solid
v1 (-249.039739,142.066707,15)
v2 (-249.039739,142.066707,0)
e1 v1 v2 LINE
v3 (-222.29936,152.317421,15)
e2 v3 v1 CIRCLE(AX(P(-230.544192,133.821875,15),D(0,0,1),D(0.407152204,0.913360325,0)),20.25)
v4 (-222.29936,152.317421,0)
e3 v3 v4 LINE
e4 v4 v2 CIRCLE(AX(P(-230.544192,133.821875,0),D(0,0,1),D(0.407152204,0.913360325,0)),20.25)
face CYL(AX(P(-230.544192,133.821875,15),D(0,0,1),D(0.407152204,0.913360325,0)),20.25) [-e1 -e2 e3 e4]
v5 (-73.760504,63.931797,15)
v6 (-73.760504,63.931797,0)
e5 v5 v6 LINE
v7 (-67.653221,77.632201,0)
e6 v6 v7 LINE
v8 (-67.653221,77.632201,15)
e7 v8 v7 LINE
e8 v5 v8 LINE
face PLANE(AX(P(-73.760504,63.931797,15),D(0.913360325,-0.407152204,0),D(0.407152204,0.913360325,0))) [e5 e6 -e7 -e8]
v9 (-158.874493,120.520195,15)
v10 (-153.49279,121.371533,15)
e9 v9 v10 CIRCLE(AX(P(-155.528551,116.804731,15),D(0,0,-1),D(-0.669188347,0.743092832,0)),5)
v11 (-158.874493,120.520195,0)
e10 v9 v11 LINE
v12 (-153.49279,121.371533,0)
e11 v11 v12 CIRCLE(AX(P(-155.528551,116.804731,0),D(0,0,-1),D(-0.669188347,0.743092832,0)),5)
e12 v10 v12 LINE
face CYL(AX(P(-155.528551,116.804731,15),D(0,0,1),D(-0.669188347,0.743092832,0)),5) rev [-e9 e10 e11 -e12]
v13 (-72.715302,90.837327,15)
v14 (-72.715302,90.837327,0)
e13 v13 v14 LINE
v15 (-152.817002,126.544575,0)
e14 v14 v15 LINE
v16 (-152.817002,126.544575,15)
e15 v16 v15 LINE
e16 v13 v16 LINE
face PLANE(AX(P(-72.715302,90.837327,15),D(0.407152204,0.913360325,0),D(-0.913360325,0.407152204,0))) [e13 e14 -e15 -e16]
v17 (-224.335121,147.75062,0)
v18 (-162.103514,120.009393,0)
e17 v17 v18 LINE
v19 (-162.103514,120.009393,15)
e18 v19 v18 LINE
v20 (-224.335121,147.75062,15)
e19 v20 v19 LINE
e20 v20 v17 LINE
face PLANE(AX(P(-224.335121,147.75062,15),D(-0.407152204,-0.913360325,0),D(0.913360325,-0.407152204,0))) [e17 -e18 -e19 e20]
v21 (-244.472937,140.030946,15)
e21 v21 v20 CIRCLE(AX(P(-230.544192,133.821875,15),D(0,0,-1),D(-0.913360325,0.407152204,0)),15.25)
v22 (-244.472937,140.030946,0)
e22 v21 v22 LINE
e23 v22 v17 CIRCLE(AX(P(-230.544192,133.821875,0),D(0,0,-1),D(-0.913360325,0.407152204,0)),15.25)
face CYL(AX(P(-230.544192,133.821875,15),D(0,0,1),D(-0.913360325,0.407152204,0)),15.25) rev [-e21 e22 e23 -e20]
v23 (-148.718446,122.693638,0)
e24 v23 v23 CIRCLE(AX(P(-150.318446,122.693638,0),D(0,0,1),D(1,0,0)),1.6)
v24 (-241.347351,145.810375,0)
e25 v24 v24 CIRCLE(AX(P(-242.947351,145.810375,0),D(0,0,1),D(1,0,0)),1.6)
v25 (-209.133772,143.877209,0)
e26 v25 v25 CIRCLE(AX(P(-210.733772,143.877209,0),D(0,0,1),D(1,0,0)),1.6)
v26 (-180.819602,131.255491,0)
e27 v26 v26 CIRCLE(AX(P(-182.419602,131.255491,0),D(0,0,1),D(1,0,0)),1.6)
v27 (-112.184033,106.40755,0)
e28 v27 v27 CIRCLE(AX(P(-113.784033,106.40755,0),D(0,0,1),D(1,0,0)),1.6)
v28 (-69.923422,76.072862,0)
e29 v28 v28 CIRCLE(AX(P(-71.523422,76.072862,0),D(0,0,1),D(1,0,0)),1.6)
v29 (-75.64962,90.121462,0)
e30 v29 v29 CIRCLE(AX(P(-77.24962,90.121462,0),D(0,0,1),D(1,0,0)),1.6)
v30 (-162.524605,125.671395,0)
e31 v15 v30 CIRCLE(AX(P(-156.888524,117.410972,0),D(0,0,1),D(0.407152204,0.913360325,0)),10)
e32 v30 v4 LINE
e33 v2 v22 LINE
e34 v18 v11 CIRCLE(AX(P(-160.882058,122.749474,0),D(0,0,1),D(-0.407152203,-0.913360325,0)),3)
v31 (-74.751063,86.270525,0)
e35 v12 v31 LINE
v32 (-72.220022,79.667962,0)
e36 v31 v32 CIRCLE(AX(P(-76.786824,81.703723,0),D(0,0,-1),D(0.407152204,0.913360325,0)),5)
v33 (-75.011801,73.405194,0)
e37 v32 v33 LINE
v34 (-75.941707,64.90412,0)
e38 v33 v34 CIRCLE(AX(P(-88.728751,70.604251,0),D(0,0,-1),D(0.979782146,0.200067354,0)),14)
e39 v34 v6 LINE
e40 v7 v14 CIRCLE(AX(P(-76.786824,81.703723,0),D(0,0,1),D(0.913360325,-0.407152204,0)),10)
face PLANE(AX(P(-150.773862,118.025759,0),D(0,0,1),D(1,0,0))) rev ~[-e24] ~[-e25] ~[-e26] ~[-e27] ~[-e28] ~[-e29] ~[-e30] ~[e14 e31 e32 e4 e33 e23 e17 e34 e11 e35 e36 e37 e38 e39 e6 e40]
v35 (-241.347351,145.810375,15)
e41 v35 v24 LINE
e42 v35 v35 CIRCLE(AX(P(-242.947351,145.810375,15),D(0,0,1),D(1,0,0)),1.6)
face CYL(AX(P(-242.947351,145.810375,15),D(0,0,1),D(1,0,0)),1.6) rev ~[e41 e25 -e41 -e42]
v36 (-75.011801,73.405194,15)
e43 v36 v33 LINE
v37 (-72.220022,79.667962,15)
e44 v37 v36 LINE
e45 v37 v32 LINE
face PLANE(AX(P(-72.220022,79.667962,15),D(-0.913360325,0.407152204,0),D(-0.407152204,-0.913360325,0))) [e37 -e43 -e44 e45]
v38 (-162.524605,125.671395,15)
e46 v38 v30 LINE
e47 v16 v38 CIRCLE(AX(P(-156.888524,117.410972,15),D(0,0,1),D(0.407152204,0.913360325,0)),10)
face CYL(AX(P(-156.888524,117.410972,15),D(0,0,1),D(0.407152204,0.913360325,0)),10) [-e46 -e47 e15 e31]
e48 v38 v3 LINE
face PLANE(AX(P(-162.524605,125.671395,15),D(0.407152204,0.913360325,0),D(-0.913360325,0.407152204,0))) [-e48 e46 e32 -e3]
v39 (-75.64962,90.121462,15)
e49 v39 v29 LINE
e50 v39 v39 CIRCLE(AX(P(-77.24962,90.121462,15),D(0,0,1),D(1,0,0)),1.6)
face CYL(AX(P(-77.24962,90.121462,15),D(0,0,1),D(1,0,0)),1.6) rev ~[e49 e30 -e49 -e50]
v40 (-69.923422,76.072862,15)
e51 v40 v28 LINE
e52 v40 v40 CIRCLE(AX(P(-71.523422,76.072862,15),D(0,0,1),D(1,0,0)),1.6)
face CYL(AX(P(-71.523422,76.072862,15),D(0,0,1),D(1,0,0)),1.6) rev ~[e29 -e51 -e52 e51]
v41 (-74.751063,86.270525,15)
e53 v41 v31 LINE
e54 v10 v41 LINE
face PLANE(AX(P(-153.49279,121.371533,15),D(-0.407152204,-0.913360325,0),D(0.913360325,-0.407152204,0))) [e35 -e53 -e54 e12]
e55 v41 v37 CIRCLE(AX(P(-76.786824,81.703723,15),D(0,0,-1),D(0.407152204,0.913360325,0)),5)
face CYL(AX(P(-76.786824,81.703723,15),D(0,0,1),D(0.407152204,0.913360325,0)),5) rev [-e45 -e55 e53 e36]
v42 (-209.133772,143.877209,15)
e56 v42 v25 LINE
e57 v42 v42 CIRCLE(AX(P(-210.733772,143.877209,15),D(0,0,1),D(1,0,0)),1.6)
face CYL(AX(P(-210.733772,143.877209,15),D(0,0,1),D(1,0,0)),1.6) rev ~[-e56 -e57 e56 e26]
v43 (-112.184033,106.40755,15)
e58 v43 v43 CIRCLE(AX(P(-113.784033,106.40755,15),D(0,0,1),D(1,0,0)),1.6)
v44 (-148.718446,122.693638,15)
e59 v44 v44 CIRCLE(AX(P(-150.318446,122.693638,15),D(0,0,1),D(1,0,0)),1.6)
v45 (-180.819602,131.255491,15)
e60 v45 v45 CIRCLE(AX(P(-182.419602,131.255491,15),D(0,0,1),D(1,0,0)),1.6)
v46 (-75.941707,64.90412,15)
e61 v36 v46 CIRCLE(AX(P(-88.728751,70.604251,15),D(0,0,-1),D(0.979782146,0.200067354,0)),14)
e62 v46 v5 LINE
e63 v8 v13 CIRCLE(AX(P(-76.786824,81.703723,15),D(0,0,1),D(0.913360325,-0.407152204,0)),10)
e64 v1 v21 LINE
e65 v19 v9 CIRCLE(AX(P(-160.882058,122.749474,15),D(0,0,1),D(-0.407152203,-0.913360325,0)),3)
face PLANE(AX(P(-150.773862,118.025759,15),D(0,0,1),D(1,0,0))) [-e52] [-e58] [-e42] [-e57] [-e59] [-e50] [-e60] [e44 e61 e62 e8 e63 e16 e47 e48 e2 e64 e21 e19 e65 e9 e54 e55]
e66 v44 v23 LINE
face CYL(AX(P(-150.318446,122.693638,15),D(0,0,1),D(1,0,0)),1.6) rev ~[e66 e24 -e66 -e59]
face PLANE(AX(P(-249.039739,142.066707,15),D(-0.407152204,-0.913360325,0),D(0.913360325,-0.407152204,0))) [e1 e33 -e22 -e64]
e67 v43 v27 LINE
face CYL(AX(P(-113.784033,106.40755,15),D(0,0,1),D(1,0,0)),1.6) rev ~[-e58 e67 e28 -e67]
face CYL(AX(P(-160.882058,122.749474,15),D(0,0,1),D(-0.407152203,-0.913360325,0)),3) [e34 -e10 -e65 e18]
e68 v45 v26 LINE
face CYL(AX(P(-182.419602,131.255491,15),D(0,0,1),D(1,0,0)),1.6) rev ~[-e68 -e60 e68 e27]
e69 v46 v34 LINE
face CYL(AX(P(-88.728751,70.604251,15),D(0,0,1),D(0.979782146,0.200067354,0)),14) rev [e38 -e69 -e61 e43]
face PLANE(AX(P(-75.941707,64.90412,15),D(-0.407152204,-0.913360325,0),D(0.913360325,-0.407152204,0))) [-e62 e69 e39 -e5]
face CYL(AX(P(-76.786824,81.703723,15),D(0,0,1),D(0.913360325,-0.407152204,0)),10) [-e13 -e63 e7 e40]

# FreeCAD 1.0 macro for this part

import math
import FreeCAD as App
import Part
import Sketcher

doc = App.newDocument("Part")
params = doc.addObject("Spreadsheet::Sheet", "Params")
for row, (alias, value) in enumerate([
    ("sketch1_radius", "14 mm"),
    ("sketch1_radius2", "10 mm"),
    ("sketch1_radius3", "3 mm"),
    ("sketch1_radius4", "5 mm"),
    ("sketch1_diameter", "3.2 mm"),
    ("pad1_length", "15 mm"),
], start=1):
    params.set(f"A{row}", alias)
    params.set(f"B{row}", "=" + value)
    params.setAlias(f"B{row}", alias)

body = doc.addObject("PartDesign::Body", "Body")

sketch1 = body.newObject("Sketcher::SketchObject", "Sketch")
sketch1.AttachmentSupport = (doc.getObject("XY_Plane"), [""])
sketch1.MapMode = "FlatFace"
sketch1.AttachmentOffset = App.Placement(App.Vector(0, 0, 15), App.Rotation())
sketch1.addGeometry([
    Part.LineSegment(App.Vector(-72.2, 79.7, 0), App.Vector(-75, 73.4, 0)),
    Part.ArcOfCircle(Part.Circle(App.Vector(-88.7, 70.6, 0), App.Vector(0, 0, 1), 14), math.radians(-24), math.radians(12)),
    Part.LineSegment(App.Vector(-75.9, 64.9, 0), App.Vector(-73.8, 63.9, 0)),
    Part.LineSegment(App.Vector(-73.8, 63.9, 0), App.Vector(-67.7, 77.6, 0)),
    Part.ArcOfCircle(Part.Circle(App.Vector(-76.8, 81.7, 0), App.Vector(0, 0, 1), 10), math.radians(-24), math.radians(66)),
    Part.LineSegment(App.Vector(-72.7, 90.8, 0), App.Vector(-152.8, 126.5, 0)),
    Part.ArcOfCircle(Part.Circle(App.Vector(-156.9, 117.4, 0), App.Vector(0, 0, 1), 10), math.radians(66), math.radians(124)),
    Part.LineSegment(App.Vector(-162.5, 125.7, 0), App.Vector(-222.3, 152.3, 0)),
    Part.ArcOfCircle(Part.Circle(App.Vector(-230.5, 133.8, 0), App.Vector(0, 0, 1), 20.2), math.radians(66), math.radians(156)),
    Part.LineSegment(App.Vector(-249, 142.1, 0), App.Vector(-244.5, 140, 0)),
    Part.ArcOfCircle(Part.Circle(App.Vector(-230.5, 133.8, 0), App.Vector(0, 0, 1), 15.3), math.radians(66), math.radians(156)),
    Part.LineSegment(App.Vector(-224.3, 147.8, 0), App.Vector(-162.1, 120, 0)),
    Part.ArcOfCircle(Part.Circle(App.Vector(-160.9, 122.7, 0), App.Vector(0, 0, 1), 3), math.radians(-114), math.radians(-48)),
    Part.ArcOfCircle(Part.Circle(App.Vector(-155.5, 116.8, 0), App.Vector(0, 0, 1), 5), math.radians(66), math.radians(132)),
    Part.LineSegment(App.Vector(-153.5, 121.4, 0), App.Vector(-74.8, 86.3, 0)),
    Part.ArcOfCircle(Part.Circle(App.Vector(-76.8, 81.7, 0), App.Vector(0, 0, 1), 5), math.radians(-24), math.radians(66)),
    Part.Circle(App.Vector(-71.5, 76.1, 0), App.Vector(0, 0, 1), 1.6),
    Part.Circle(App.Vector(-77.2, 90.1, 0), App.Vector(0, 0, 1), 1.6),
    Part.Circle(App.Vector(-113.8, 106.4, 0), App.Vector(0, 0, 1), 1.6),
    Part.Circle(App.Vector(-242.9, 145.8, 0), App.Vector(0, 0, 1), 1.6),
    Part.Circle(App.Vector(-210.7, 143.9, 0), App.Vector(0, 0, 1), 1.6),
    Part.Circle(App.Vector(-182.4, 131.3, 0), App.Vector(0, 0, 1), 1.6),
    Part.Circle(App.Vector(-150.3, 122.7, 0), App.Vector(0, 0, 1), 1.6),
], False)
sketch1.addConstraint([
    Sketcher.Constraint("Coincident", 0, 2, 1, 2),
    Sketcher.Constraint("Coincident", 1, 1, 2, 1),
    Sketcher.Constraint("Coincident", 2, 2, 3, 1),
    Sketcher.Constraint("Tangent", 3, 2, 4, 1),
    Sketcher.Constraint("Tangent", 4, 2, 5, 1),
    Sketcher.Constraint("Tangent", 5, 2, 6, 1),
    Sketcher.Constraint("Coincident", 6, 2, 7, 1),
    Sketcher.Constraint("Tangent", 7, 2, 8, 1),
    Sketcher.Constraint("Coincident", 8, 2, 9, 1),
    Sketcher.Constraint("Coincident", 9, 2, 10, 2),
    Sketcher.Constraint("Tangent", 10, 1, 11, 1),
    Sketcher.Constraint("Tangent", 11, 2, 12, 1),
    Sketcher.Constraint("Tangent", 12, 2, 13, 2),
    Sketcher.Constraint("Tangent", 13, 1, 14, 1),
    Sketcher.Constraint("Tangent", 14, 2, 15, 2),
    Sketcher.Constraint("Tangent", 15, 1, 0, 1),
    Sketcher.Constraint("Coincident", 10, 3, 8, 3),
    Sketcher.Constraint("Coincident", 15, 3, 4, 3),
    Sketcher.Constraint("Equal", 4, 6),
    Sketcher.Constraint("Equal", 13, 15),
    Sketcher.Constraint("Equal", 16, 17),
    Sketcher.Constraint("Equal", 17, 18),
    Sketcher.Constraint("Equal", 18, 19),
    Sketcher.Constraint("Equal", 19, 20),
    Sketcher.Constraint("Equal", 20, 21),
    Sketcher.Constraint("Equal", 21, 22),
    Sketcher.Constraint("Perpendicular", 0, 2),
    Sketcher.Constraint("Perpendicular", 2, 3),
    Sketcher.Constraint("Perpendicular", 3, 5),
    Sketcher.Constraint("Parallel", 5, 7),
    Sketcher.Constraint("Parallel", 7, 9),
    Sketcher.Constraint("Parallel", 9, 11),
    Sketcher.Constraint("Parallel", 11, 14),
    Sketcher.Constraint("Radius", 1, 14.0),
    Sketcher.Constraint("Radius", 4, 10.0),
    Sketcher.Constraint("Radius", 12, 3.0),
    Sketcher.Constraint("Radius", 13, 5.0),
    Sketcher.Constraint("Diameter", 16, 3.2),
    Sketcher.Constraint("Radius", 8, 20.25),
    Sketcher.Constraint("Radius", 10, 15.25),
    Sketcher.Constraint("Distance", 3, 15.0),
    Sketcher.Constraint("Distance", 5, 87.7),
    Sketcher.Constraint("DistanceX", 0, 2, -1, 1, 75.011801),
    Sketcher.Constraint("DistanceY", -1, 1, 3, 2, 77.632201),
    Sketcher.Constraint("DistanceX", 4, 2, -1, 1, 72.715302),
    Sketcher.Constraint("DistanceX", 6, 3, 4, 3, 80.1017),
    Sketcher.Constraint("DistanceY", 12, 3, 10, 3, 11.072401),
    Sketcher.Constraint("DistanceX", 13, 3, 1, 3, 66.7998),
    Sketcher.Constraint("DistanceX", 15, 3, 16, 3, 5.263402),
    Sketcher.Constraint("DistanceY", 16, 3, 17, 3, 14.0486),
    Sketcher.Constraint("DistanceY", 1, 3, 18, 3, 35.803299),
    Sketcher.Constraint("DistanceY", 8, 3, 19, 3, 11.988501),
    Sketcher.Constraint("DistanceX", 19, 3, 13, 3, 87.4188),
    Sketcher.Constraint("DistanceY", 12, 3, 5, 2, 3.795101),
    Sketcher.Constraint("DistanceX", 21, 3, 5, 2, 29.6026),
    Sketcher.Constraint("DistanceY", 12, 2, 6, 2, 5.1512),
    Sketcher.Constraint("DistanceY", 16, 3, 15, 1, 3.595101),
    Sketcher.Constraint("DistanceX", 17, 3, -1, 1, 77.24962),
    Sketcher.Constraint("DistanceY", -1, 1, 20, 3, 143.877209),
    Sketcher.Constraint("DistanceY", -1, 1, 21, 3, 131.255491),
    Sketcher.Constraint("DistanceY", -1, 1, 22, 3, 122.693638),
    Sketcher.Constraint("DistanceX", 8, 2, -1, 1, 249.039739),
    Sketcher.Constraint("DistanceX", 13, 3, 18, 3, 41.744519),
    Sketcher.Constraint("DistanceX", 8, 3, 20, 3, 19.81042),
    Sketcher.Constraint("DistanceX", 6, 3, 22, 3, 6.570079),
])
sketch1.setExpression("Constraints[33]", "Params.sketch1_radius")
sketch1.setExpression("Constraints[34]", "Params.sketch1_radius2")
sketch1.setExpression("Constraints[35]", "Params.sketch1_radius3")
sketch1.setExpression("Constraints[36]", "Params.sketch1_radius4")
sketch1.setExpression("Constraints[37]", "Params.sketch1_diameter")
pad1 = body.newObject("PartDesign::Pad", "Pad")
pad1.Profile = sketch1
pad1.setExpression("Length", "Params.pad1_length")
pad1.Reversed = True

doc.recompute()
